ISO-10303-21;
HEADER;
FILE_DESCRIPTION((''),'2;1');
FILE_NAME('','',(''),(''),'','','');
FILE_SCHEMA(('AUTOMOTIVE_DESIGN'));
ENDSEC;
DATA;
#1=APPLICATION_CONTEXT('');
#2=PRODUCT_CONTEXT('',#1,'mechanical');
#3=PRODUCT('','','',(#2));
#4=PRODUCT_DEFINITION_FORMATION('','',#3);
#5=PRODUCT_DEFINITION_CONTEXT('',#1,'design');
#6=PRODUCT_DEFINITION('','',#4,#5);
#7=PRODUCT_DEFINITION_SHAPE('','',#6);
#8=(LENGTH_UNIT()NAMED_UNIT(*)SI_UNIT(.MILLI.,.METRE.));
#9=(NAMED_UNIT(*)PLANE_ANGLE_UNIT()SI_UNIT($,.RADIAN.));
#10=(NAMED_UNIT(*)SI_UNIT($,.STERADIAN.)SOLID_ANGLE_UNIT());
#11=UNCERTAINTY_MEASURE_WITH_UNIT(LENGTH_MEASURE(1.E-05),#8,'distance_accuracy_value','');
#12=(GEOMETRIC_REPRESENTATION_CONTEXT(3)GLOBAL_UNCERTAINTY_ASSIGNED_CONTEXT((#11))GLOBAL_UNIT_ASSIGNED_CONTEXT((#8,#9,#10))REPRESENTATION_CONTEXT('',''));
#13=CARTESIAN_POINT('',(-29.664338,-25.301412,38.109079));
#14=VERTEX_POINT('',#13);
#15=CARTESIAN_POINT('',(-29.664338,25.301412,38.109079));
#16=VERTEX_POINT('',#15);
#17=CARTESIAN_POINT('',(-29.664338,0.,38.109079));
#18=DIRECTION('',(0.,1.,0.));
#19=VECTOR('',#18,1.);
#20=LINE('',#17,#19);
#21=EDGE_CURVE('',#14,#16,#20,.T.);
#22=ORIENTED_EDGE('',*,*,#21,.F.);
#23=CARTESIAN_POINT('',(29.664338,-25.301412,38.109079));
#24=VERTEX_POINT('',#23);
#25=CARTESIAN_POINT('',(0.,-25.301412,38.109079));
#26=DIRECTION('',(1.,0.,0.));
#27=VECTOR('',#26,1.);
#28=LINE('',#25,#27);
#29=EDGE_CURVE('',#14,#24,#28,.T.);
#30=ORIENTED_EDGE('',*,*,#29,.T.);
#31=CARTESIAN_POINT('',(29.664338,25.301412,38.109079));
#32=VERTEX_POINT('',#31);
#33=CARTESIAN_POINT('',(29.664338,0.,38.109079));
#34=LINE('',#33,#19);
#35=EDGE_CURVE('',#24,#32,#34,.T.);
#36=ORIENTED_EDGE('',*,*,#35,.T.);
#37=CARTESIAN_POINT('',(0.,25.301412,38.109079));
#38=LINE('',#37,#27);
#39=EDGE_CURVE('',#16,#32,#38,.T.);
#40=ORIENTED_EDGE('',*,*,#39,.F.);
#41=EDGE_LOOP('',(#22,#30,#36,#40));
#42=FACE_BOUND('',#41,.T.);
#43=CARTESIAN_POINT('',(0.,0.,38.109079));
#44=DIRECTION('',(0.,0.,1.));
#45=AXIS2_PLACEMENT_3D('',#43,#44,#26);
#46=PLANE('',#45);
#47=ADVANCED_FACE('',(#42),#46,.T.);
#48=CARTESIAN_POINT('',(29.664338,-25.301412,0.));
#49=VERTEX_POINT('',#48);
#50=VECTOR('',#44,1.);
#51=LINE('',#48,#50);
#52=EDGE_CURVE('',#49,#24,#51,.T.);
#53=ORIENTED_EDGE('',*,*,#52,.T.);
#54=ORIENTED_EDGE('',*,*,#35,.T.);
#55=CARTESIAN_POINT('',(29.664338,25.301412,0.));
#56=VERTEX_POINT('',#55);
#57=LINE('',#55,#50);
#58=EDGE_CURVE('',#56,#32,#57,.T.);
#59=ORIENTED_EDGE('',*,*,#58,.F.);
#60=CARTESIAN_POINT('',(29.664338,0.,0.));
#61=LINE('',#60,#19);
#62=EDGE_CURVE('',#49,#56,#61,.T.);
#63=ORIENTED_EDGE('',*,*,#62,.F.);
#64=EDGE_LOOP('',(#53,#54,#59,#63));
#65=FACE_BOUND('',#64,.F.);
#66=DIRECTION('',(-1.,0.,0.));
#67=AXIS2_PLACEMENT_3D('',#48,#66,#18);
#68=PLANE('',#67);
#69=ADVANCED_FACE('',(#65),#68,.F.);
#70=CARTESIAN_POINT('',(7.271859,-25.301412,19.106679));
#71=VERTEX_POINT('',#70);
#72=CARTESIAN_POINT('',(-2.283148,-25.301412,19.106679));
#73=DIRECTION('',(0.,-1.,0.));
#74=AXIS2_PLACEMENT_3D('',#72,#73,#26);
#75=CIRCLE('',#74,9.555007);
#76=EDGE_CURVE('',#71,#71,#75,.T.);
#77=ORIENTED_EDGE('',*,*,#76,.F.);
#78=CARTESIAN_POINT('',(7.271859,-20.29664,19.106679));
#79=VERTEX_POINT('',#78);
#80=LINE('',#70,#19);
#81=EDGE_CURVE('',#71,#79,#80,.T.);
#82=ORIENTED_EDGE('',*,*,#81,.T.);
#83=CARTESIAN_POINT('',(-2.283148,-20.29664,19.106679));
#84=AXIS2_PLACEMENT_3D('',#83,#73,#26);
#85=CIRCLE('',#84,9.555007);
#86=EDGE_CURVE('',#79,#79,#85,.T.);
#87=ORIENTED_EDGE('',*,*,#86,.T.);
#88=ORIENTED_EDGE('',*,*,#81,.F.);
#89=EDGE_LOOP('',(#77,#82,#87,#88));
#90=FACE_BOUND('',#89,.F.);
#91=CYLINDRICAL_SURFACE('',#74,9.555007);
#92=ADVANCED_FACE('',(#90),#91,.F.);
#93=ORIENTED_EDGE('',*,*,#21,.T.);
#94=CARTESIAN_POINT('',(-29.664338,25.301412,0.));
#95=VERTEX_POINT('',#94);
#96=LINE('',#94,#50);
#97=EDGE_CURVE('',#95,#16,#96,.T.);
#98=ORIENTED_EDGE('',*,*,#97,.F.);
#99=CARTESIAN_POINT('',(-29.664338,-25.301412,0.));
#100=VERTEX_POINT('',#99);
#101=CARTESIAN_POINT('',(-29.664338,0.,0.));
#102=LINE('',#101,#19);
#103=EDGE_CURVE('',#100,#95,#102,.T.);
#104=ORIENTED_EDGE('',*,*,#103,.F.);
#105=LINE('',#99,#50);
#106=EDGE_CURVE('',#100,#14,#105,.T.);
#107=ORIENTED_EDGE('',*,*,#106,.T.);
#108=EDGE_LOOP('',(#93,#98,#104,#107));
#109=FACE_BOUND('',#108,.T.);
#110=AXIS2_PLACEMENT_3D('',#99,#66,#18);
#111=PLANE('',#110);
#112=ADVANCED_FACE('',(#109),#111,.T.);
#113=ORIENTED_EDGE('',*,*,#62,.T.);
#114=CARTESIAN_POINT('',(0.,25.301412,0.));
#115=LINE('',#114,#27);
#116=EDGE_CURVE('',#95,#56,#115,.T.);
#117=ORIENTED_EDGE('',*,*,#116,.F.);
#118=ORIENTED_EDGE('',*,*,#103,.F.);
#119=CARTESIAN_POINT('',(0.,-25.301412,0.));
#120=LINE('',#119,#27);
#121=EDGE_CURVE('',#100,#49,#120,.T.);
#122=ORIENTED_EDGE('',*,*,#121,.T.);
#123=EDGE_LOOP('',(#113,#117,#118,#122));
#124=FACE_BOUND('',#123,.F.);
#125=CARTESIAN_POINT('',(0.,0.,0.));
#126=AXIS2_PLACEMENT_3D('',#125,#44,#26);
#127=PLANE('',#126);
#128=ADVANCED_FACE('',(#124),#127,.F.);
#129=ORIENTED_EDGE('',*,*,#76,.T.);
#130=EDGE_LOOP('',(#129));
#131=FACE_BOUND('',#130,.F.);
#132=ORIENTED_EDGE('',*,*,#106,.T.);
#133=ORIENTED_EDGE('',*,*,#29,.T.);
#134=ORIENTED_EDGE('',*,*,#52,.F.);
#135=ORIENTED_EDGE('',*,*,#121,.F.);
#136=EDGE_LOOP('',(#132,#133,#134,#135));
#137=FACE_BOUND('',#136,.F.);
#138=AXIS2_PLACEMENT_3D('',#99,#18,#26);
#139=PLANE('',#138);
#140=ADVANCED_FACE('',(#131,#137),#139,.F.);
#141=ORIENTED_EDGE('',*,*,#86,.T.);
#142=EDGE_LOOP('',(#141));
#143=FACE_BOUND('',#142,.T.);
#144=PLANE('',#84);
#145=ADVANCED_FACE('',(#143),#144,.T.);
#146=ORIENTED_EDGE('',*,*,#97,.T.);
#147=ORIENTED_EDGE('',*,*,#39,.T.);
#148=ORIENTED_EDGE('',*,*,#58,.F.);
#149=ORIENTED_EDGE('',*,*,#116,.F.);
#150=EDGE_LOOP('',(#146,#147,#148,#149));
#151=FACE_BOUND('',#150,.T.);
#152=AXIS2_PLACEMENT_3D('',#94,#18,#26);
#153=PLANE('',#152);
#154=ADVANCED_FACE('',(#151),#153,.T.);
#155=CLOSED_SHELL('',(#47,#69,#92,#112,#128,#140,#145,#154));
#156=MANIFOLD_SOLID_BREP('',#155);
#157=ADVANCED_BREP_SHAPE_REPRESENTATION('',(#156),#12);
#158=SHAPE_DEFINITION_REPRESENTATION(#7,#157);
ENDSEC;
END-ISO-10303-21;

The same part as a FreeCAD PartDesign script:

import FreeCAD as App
import Part
import Sketcher
Q = App.Units.Quantity

doc = App.newDocument("Part")
params = doc.addObject("Spreadsheet::Sheet", "Params")
for row, (alias, value) in enumerate([
    ("pad1_length", "38.109079 mm"),
    ("pocket1_length", "5.004772 mm"),
], start=1):
    params.set(f"A{row}", alias)
    params.set(f"B{row}", "=" + value)
    params.setAlias(f"B{row}", alias)

body = doc.addObject("PartDesign::Body", "Body")

# Sketch on XY plane
sketch1 = body.newObject("Sketcher::SketchObject", "Sketch")
sketch1.AttachmentSupport = (doc.getObject("XY_Plane"), [""])
sketch1.MapMode = "FlatFace"
sketch1.addGeometry([
    Part.LineSegment(App.Vector(-30, 25, 0), App.Vector(-30, -25, 0)),
    Part.LineSegment(App.Vector(-30, -25, 0), App.Vector(30, -25, 0)),
    Part.LineSegment(App.Vector(30, -25, 0), App.Vector(30, 25, 0)),
    Part.LineSegment(App.Vector(30, 25, 0), App.Vector(-30, 25, 0)),
], False)
sketch1.addConstraint([
    Sketcher.Constraint("Coincident", 0, 2, 1, 1),
    Sketcher.Constraint("Coincident", 1, 2, 2, 1),
    Sketcher.Constraint("Coincident", 2, 2, 3, 1),
    Sketcher.Constraint("Coincident", 3, 2, 0, 1),
    Sketcher.Constraint("Vertical", 0),
    Sketcher.Constraint("Horizontal", 1),
    Sketcher.Constraint("Vertical", 2),
    Sketcher.Constraint("Horizontal", 3),
    Sketcher.Constraint("Symmetric", 0, 2, 2, 2, -1, 1),
    Sketcher.Constraint("DistanceX", 1, 1, 1, 2, Q("59.328676 mm")),
    Sketcher.Constraint("DistanceY", 0, 2, 0, 1, Q("50.602824 mm")),
])
pad1 = body.newObject("PartDesign::Pad", "Pad")
pad1.Profile = sketch1
pad1.setExpression("Length", "Params.pad1_length")

# Sketch on XZ plane
sketch2 = body.newObject("Sketcher::SketchObject", "Sketch001")
sketch2.AttachmentSupport = (doc.getObject("XZ_Plane"), [""])
sketch2.MapMode = "FlatFace"
sketch2.AttachmentOffset = App.Placement(App.Vector(0, 0, 25.301412), App.Rotation())
sketch2.addGeometry(Part.Circle(App.Vector(-2, 19, 0), App.Vector(0, 0, 1), 10), False)
sketch2.addConstraint([
    Sketcher.Constraint("Diameter", 0, Q("19.110014 mm")),
    Sketcher.Constraint("DistanceX", 0, 3, -1, 1, Q("2.283148 mm")),
    Sketcher.Constraint("DistanceY", -1, 1, 0, 3, Q("19.106679 mm")),
])
pocket1 = body.newObject("PartDesign::Pocket", "Pocket")
pocket1.Profile = sketch2
pocket1.setExpression("Length", "Params.pocket1_length")

doc.recompute()
